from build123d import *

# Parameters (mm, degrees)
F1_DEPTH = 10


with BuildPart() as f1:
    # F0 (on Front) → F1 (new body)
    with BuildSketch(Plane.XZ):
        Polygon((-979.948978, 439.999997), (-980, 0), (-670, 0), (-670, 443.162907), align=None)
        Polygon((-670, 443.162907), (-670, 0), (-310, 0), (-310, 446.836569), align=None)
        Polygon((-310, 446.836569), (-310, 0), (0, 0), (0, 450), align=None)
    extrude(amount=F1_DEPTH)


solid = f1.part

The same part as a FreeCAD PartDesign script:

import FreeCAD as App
import Part
import Sketcher
Q = App.Units.Quantity


def add_polygon(sketch, points):
    """Adds a closed chain of lines whose ends are joined by coincident constraints."""
    first, n = sketch.GeometryCount, len(points)
    for a, b in zip(points, points[1:] + points[:1]):
        sketch.addGeometry(Part.LineSegment(App.Vector(*a, 0), App.Vector(*b, 0)), False)
    for i in range(n):
        sketch.addConstraint(Sketcher.Constraint("Coincident", first + i, 2, first + (i + 1) % n, 1))

doc = App.newDocument("Part")
body = doc.addObject("PartDesign::Body", "Body")

sketch1 = body.newObject("Sketcher::SketchObject", "Sketch")
sketch1.AttachmentSupport = (doc.getObject("XZ_Plane"), [""])
sketch1.MapMode = "FlatFace"
add_polygon(sketch1, [(-980, 440), (-980, 0), (0, 0), (0, 450), (-310, 447), (-670, 443)])
sketch1.addConstraint(Sketcher.Constraint("Horizontal", 1))
sketch1.addConstraint(Sketcher.Constraint("Vertical", 2))
sketch1.addConstraint(Sketcher.Constraint("Coincident", 1, 2, -1, 1))
sketch1.addConstraint(Sketcher.Constraint("Parallel", 3, 4))
sketch1.addConstraint(Sketcher.Constraint("Parallel", 4, 5))
sketch1.addConstraint(Sketcher.Constraint("DistanceX", 1, 1, 1, 2, Q("980 mm")))
sketch1.addConstraint(Sketcher.Constraint("DistanceY", 2, 1, 2, 2, Q("450 mm")))
sketch1.addConstraint(Sketcher.Constraint("Distance", 0, Q("440 mm")))
sketch1.addConstraint(Sketcher.Constraint("DistanceX", 3, 2, -1, 1, Q("310 mm")))
sketch1.addConstraint(Sketcher.Constraint("DistanceX", 4, 2, -1, 1, Q("670 mm")))
sketch1.addConstraint(Sketcher.Constraint("DistanceY", -1, 1, 3, 2, Q("446.836569 mm")))
pad1 = body.newObject("PartDesign::Pad", "Pad")
pad1.Profile = sketch1
pad1.Length = 10

doc.recompute()
